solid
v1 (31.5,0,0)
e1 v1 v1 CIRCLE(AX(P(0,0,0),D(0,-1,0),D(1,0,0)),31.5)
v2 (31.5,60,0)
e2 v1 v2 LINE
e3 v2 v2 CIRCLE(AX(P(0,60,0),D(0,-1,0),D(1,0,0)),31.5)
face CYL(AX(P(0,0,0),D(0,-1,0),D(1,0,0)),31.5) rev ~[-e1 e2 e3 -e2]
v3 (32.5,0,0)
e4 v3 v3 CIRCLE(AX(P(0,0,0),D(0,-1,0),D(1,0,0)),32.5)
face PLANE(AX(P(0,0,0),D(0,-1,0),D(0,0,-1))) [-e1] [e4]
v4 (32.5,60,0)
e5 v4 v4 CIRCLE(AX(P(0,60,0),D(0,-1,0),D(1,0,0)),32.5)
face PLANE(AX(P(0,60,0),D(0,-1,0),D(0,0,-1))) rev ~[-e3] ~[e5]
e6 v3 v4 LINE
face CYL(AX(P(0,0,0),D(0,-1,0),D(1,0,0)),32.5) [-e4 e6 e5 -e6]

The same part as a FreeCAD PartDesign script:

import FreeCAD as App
import Part
import Sketcher
Q = App.Units.Quantity

doc = App.newDocument("Part")
body = doc.addObject("PartDesign::Body", "Body")

sketch1 = body.newObject("Sketcher::SketchObject", "Sketch")
sketch1.AttachmentSupport = (doc.getObject("XZ_Plane"), [""])
sketch1.MapMode = "FlatFace"
sketch1.addGeometry([
    Part.Circle(App.Vector(0, 0, 0), App.Vector(0, 0, 1), 32),
    Part.Circle(App.Vector(0, 0, 0), App.Vector(0, 0, 1), 32),
], False)
sketch1.addConstraint([
    Sketcher.Constraint("Coincident", 0, 3, -1, 1),
    Sketcher.Constraint("Coincident", 1, 3, -1, 1),
    Sketcher.Constraint("Diameter", 0, Q("65 mm")),
    Sketcher.Constraint("Diameter", 1, Q("63 mm")),
])
pad1 = body.newObject("PartDesign::Pad", "Pad")
pad1.Profile = sketch1
pad1.Length = 60
pad1.Reversed = True

doc.recompute()
